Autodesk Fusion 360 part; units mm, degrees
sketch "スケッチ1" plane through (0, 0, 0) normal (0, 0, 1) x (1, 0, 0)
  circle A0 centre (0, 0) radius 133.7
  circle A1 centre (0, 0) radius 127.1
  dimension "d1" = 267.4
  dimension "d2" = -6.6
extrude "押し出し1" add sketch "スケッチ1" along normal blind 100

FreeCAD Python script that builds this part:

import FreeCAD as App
import Part
import Sketcher
from FreeCAD import Vector

doc = App.newDocument("Part")
params = doc.addObject("Spreadsheet::Sheet", "Params")
for row, (alias, value) in enumerate([
    ("sketch1_diameter", "267.4 mm"),
    ("sketch1_diameter2", "254.2 mm"),
    ("pad1_length", "100 mm"),
], start=1):
    params.set(f"A{row}", alias)
    params.set(f"B{row}", "=" + value)
    params.setAlias(f"B{row}", alias)

body = doc.addObject("PartDesign::Body", "Body")

# Sketch on XY plane
sketch1 = doc.addObject("Sketcher::SketchObject", "Sketch")
body.addObject(sketch1)
sketch1.AttachmentSupport = (doc.XY_Plane, [""])
sketch1.MapMode = "FlatFace"
sketch1.addGeometry([
    Part.Circle(Vector(0, 0, 0), Vector(0, 0, 1), 133.7),
    Part.Circle(Vector(0, 0, 0), Vector(0, 0, 1), 127.1),
], False)
sketch1.addConstraint([
    Sketcher.Constraint("Coincident", 0, 3, -1, 1),
    Sketcher.Constraint("Coincident", 1, 3, -1, 1),
    Sketcher.Constraint("Diameter", 0, 267.4),
    Sketcher.Constraint("Diameter", 1, 254.2),
])
sketch1.setExpression("Constraints[2]", "Params.sketch1_diameter")
sketch1.setExpression("Constraints[3]", "Params.sketch1_diameter2")
pad1 = doc.addObject("PartDesign::Pad", "Pad")
body.addObject(pad1)
pad1.Profile = sketch1
pad1.setExpression("Length", "Params.pad1_length")

doc.recompute()
